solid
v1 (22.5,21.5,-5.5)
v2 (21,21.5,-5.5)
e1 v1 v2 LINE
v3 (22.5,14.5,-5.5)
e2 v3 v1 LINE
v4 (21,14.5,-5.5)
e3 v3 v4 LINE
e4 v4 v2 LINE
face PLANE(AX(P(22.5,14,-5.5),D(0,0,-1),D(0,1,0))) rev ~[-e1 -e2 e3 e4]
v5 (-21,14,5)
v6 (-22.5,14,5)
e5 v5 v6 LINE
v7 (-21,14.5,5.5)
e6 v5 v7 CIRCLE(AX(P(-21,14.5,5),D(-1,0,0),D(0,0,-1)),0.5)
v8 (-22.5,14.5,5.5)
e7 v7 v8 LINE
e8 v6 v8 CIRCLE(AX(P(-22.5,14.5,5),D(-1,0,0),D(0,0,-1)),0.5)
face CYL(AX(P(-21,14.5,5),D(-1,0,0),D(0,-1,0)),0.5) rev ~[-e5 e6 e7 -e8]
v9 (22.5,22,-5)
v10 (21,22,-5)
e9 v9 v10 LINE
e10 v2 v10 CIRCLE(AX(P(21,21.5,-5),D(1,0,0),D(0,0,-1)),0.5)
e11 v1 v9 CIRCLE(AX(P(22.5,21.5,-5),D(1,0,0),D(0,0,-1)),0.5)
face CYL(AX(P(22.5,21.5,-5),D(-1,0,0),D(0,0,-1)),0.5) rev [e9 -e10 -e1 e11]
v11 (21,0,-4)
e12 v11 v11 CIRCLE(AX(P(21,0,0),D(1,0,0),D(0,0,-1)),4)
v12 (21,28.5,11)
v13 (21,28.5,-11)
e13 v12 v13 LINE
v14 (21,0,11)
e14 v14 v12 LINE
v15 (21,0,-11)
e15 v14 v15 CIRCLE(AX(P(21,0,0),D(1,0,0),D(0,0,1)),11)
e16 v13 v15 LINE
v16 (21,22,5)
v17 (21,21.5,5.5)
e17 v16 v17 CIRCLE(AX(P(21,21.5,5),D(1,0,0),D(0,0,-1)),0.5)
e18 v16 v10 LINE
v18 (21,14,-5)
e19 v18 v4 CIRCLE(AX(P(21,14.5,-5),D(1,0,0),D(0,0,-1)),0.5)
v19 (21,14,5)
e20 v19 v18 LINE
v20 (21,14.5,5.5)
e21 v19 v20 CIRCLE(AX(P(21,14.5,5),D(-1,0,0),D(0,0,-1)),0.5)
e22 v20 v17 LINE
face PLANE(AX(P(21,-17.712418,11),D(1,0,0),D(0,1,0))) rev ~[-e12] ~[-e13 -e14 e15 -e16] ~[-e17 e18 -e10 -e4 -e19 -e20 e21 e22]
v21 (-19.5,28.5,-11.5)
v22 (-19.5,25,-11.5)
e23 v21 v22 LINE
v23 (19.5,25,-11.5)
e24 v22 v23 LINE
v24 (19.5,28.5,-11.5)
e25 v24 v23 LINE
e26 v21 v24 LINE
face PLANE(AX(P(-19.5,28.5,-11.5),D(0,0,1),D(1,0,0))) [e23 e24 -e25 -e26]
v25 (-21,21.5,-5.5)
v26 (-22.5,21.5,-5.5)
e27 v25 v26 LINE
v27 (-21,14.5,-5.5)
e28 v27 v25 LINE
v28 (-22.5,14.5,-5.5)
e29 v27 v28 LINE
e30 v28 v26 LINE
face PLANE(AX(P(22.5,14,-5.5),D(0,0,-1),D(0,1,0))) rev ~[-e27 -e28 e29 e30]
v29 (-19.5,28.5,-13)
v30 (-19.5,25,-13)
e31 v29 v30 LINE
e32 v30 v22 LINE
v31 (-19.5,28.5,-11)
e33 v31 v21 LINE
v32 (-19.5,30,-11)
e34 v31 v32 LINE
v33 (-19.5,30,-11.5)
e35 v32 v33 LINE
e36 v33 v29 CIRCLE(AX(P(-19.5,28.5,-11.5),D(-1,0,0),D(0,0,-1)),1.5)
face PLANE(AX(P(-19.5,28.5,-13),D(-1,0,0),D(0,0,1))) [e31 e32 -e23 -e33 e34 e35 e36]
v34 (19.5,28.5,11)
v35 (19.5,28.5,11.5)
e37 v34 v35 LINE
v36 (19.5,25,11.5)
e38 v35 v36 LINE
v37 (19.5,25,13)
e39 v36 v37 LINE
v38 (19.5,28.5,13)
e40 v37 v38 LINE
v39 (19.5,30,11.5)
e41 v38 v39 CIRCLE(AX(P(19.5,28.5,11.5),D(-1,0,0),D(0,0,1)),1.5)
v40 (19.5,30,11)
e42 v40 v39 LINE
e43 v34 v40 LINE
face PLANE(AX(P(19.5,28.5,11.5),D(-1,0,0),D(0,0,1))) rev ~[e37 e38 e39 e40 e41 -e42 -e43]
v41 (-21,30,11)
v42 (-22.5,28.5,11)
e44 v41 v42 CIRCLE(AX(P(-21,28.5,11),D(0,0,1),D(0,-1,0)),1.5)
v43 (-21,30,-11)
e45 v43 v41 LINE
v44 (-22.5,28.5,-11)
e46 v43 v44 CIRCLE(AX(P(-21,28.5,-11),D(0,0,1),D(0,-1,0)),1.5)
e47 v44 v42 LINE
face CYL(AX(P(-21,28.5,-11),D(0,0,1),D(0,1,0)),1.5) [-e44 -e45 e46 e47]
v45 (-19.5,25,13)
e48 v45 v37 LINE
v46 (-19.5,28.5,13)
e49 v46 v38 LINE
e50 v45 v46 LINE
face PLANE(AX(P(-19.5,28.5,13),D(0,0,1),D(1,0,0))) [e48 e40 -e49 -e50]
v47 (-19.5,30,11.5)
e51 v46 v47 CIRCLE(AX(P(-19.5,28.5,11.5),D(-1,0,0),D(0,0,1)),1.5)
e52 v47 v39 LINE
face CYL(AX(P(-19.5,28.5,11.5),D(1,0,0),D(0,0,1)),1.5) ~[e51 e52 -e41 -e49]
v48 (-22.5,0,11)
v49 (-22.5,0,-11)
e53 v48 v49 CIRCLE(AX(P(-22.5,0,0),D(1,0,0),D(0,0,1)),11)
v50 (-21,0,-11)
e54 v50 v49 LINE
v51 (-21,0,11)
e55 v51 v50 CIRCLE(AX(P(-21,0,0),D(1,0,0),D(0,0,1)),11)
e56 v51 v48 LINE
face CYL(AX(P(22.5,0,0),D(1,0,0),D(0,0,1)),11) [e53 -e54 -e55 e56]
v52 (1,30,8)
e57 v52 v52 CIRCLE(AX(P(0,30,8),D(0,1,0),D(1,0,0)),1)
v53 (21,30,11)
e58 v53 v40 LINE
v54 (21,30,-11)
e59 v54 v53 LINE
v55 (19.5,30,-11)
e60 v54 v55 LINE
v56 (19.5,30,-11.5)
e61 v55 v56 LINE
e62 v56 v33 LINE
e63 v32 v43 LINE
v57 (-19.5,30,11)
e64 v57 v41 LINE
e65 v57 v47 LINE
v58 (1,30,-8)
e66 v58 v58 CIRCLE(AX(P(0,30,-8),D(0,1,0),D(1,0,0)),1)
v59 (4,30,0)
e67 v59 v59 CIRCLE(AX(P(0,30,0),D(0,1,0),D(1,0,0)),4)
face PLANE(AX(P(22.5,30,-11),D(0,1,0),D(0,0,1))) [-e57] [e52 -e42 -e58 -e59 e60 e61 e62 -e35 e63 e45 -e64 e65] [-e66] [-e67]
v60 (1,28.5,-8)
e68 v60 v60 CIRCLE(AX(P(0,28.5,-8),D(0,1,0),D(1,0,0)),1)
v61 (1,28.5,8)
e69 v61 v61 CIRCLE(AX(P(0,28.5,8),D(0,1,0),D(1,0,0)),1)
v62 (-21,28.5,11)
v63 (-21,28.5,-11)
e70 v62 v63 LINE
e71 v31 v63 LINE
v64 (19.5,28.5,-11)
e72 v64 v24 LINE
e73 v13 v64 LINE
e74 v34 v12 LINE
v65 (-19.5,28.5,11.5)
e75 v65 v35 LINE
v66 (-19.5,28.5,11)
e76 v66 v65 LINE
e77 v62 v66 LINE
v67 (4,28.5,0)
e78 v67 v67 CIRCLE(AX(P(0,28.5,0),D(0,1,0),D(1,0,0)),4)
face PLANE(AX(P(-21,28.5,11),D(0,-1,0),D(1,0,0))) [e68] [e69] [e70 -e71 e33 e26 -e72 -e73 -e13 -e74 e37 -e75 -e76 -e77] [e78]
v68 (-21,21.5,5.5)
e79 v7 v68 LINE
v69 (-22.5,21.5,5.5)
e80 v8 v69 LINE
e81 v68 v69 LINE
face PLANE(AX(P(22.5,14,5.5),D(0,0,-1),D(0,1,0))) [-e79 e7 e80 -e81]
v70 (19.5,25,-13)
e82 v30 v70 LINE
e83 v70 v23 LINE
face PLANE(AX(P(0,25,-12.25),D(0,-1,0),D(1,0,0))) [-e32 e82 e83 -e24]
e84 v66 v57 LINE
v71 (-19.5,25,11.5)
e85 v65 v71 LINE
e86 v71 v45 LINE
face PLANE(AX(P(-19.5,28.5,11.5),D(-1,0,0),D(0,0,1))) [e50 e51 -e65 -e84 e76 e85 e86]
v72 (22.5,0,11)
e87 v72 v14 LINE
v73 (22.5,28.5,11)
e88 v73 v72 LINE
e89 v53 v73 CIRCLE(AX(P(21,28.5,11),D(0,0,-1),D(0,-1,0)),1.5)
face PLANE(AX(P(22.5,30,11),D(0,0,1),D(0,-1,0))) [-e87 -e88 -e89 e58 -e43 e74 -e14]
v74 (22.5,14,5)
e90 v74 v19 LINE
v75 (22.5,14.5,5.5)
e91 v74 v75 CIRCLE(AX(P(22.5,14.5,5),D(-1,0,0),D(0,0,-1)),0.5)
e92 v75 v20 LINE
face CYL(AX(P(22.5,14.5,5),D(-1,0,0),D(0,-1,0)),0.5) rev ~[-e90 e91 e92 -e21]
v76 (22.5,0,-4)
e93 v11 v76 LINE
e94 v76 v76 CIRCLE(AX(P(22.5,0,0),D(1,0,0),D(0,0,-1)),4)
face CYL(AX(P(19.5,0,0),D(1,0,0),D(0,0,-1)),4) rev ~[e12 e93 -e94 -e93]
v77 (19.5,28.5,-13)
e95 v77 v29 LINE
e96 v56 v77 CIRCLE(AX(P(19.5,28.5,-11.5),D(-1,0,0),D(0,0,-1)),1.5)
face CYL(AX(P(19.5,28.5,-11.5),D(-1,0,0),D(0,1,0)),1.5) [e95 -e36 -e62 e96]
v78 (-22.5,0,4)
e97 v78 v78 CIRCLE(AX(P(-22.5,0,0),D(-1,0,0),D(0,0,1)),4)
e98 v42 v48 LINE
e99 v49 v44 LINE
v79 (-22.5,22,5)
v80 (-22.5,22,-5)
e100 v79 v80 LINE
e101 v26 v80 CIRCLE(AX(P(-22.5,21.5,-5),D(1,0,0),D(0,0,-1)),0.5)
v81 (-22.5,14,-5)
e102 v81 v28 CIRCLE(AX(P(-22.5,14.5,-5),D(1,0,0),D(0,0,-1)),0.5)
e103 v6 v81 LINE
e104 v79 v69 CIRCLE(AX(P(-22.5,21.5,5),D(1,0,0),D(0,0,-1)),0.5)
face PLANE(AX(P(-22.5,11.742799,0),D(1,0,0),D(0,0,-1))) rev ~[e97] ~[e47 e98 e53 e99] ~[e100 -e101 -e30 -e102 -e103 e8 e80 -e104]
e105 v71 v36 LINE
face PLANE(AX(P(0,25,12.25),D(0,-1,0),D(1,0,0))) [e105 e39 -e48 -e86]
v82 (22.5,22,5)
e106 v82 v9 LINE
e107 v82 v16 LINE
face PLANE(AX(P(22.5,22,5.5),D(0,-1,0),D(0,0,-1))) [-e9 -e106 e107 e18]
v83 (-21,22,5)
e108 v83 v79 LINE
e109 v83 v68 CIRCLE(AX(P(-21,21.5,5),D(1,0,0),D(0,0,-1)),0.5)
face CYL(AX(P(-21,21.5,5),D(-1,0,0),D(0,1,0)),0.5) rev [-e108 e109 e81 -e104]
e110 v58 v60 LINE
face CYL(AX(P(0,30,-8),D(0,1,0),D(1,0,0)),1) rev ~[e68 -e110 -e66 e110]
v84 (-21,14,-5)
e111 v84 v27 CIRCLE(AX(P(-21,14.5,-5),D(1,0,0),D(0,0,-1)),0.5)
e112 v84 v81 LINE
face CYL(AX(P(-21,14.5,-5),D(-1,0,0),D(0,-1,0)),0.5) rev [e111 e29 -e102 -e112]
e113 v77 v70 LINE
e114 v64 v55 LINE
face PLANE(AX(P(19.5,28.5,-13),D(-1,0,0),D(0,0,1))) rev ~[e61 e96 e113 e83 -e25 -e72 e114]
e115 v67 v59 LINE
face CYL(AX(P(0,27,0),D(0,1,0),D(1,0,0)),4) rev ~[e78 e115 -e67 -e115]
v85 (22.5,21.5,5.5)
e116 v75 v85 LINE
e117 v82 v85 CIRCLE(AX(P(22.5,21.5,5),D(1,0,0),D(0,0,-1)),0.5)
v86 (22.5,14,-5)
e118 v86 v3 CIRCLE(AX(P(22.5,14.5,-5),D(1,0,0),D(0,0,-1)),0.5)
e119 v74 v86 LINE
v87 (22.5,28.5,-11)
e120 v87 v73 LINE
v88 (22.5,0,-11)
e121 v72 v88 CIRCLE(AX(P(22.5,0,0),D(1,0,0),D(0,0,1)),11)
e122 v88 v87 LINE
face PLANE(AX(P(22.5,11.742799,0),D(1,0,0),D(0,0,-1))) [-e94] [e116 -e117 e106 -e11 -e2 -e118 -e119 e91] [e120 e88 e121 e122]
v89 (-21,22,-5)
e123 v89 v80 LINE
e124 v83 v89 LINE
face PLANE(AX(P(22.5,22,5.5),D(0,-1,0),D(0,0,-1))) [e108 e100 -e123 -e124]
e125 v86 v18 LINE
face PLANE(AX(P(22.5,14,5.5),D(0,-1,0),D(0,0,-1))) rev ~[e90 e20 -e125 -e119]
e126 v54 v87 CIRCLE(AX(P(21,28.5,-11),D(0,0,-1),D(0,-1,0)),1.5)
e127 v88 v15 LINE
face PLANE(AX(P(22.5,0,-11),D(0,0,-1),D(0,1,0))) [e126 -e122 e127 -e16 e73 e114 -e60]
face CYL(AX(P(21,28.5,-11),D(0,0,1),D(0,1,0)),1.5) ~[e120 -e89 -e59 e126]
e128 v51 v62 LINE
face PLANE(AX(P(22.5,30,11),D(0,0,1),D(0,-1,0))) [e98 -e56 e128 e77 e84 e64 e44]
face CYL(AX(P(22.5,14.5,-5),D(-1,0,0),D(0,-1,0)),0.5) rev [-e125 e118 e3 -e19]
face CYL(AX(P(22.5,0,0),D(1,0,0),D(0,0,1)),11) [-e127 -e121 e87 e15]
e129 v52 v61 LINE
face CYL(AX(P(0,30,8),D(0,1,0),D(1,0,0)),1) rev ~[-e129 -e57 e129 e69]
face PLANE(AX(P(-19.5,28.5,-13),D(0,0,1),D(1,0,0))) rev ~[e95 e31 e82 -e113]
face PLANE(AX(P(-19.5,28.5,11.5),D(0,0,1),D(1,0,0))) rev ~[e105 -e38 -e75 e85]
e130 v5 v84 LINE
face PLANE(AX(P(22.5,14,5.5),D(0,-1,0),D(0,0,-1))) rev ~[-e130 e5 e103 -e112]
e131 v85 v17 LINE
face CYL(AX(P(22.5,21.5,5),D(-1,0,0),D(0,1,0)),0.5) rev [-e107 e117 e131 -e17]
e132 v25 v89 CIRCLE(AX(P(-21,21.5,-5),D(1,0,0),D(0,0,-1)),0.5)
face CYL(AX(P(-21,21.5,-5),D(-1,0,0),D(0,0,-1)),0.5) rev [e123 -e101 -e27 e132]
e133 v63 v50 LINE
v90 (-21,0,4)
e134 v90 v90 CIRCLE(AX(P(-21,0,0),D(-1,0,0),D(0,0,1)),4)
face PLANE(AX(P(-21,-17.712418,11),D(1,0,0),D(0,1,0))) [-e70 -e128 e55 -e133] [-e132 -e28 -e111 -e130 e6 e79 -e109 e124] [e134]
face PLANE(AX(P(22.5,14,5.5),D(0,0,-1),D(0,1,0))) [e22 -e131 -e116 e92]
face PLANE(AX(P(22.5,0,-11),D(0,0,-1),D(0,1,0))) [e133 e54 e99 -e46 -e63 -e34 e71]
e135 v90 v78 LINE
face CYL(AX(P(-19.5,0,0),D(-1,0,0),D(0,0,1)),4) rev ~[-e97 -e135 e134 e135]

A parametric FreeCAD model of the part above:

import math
import FreeCAD as App
import Part
import Sketcher

V = App.Vector
Q = App.Units.Quantity


def edges_at(feature, points):
    """Names of the edges that pass closest to the given points."""
    edges = feature.Shape.Edges
    near = lambda p: min(range(len(edges)), key=lambda i: edges[i].distToShape(Part.Vertex(*p))[0])
    return sorted({f"Edge{near(p) + 1}" for p in points})

doc = App.newDocument("Part")
body = doc.addObject("PartDesign::Body", "Body")

# Sketch on YZ plane
sketch1 = doc.addObject("Sketcher::SketchObject", "Sketch")
body.addObject(sketch1)
sketch1.AttachmentSupport = (doc.YZ_Plane, [""])
sketch1.MapMode = "FlatFace"
sketch1.AttachmentOffset = App.Placement(V(0, 0, 22.5), App.Rotation())
sketch1.addGeometry([
    Part.LineSegment(V(30, 11, 0), V(0, 11, 0)),
    Part.ArcOfCircle(Part.Circle(V(0, 0, 0), V(0, 0, 1), 11), math.radians(90), math.radians(270)),
    Part.LineSegment(V(0, -11, 0), V(30, -11, 0)),
    Part.LineSegment(V(30, -11, 0), V(30, 11, 0)),
], False)
sketch1.addConstraint([
    Sketcher.Constraint("Tangent", 0, 2, 1, 1),
    Sketcher.Constraint("Tangent", 1, 2, 2, 1),
    Sketcher.Constraint("Coincident", 2, 2, 3, 1),
    Sketcher.Constraint("Coincident", 3, 2, 0, 1),
    Sketcher.Constraint("Horizontal", 0),
    Sketcher.Constraint("Horizontal", 2),
    Sketcher.Constraint("Vertical", 3),
    Sketcher.Constraint("Coincident", 1, 3, -1, 1),
    Sketcher.Constraint("Radius", 1, Q("11 mm")),
    Sketcher.Constraint("DistanceX", 0, 2, 0, 1, Q("30 mm")),
])
pad1 = doc.addObject("PartDesign::Pad", "Pad")
body.addObject(pad1)
pad1.Profile = sketch1
pad1.Length = 45
pad1.Reversed = True

# Sketch on XY plane
sketch2 = doc.addObject("Sketcher::SketchObject", "Sketch001")
body.addObject(sketch2)
sketch2.AttachmentSupport = (doc.XY_Plane, [""])
sketch2.MapMode = "FlatFace"
sketch2.AttachmentOffset = App.Placement(V(0, 0, 11), App.Rotation())
sketch2.addGeometry([
    Part.LineSegment(V(-21, 28, 0), V(-21, -18, 0)),
    Part.LineSegment(V(-21, -18, 0), V(21, -18, 0)),
    Part.LineSegment(V(21, -18, 0), V(21, 28, 0)),
    Part.LineSegment(V(21, 28, 0), V(-21, 28, 0)),
], False)
sketch2.addConstraint([
    Sketcher.Constraint("Coincident", 0, 2, 1, 1),
    Sketcher.Constraint("Coincident", 1, 2, 2, 1),
    Sketcher.Constraint("Coincident", 2, 2, 3, 1),
    Sketcher.Constraint("Coincident", 3, 2, 0, 1),
    Sketcher.Constraint("Vertical", 0),
    Sketcher.Constraint("Horizontal", 1),
    Sketcher.Constraint("Vertical", 2),
    Sketcher.Constraint("Horizontal", 3),
    Sketcher.Constraint("DistanceX", 1, 1, 1, 2, Q("42 mm")),
    Sketcher.Constraint("DistanceX", 0, 2, -1, 1, Q("21 mm")),
    Sketcher.Constraint("DistanceY", -1, 1, 2, 2, Q("28.5 mm")),
    Sketcher.Constraint("DistanceY", 0, 2, 0, 1, Q("46.212418 mm")),
])
pocket1 = doc.addObject("PartDesign::Pocket", "Pocket")
body.addObject(pocket1)
pocket1.Profile = sketch2
pocket1.Type = "ThroughAll"

# Sketch on XY plane
sketch3 = doc.addObject("Sketcher::SketchObject", "Sketch002")
body.addObject(sketch3)
sketch3.AttachmentSupport = (doc.XY_Plane, [""])
sketch3.MapMode = "FlatFace"
sketch3.AttachmentOffset = App.Placement(V(0, 0, -11), App.Rotation())
sketch3.addGeometry([
    Part.LineSegment(V(19.5, 30, 0), V(19.5, 28.5, 0)),
    Part.LineSegment(V(19.5, 28.5, 0), V(-19.5, 28.5, 0)),
    Part.LineSegment(V(-19.5, 28.5, 0), V(-19.5, 30, 0)),
    Part.LineSegment(V(-19.5, 30, 0), V(19.5, 30, 0)),
], False)
sketch3.addConstraint([
    Sketcher.Constraint("Coincident", 0, 2, 1, 1),
    Sketcher.Constraint("Coincident", 1, 2, 2, 1),
    Sketcher.Constraint("Coincident", 2, 2, 3, 1),
    Sketcher.Constraint("Coincident", 3, 2, 0, 1),
    Sketcher.Constraint("Vertical", 0),
    Sketcher.Constraint("Horizontal", 1),
    Sketcher.Constraint("Vertical", 2),
    Sketcher.Constraint("Horizontal", 3),
    Sketcher.Constraint("DistanceX", 1, 2, 1, 1, Q("39 mm")),
    Sketcher.Constraint("DistanceY", 0, 2, 0, 1, Q("1.5 mm")),
    Sketcher.Constraint("DistanceY", -1, 1, 2, 2, Q("30 mm")),
    Sketcher.Constraint("DistanceX", -1, 1, 0, 2, Q("19.5 mm")),
])
pad2 = doc.addObject("PartDesign::Pad", "Pad001")
body.addObject(pad2)
pad2.Profile = sketch3
pad2.Length = 2
pad2.Reversed = True

# Sketch on XZ plane
sketch4 = doc.addObject("Sketcher::SketchObject", "Sketch003")
body.addObject(sketch4)
sketch4.AttachmentSupport = (doc.XZ_Plane, [""])
sketch4.MapMode = "FlatFace"
sketch4.AttachmentOffset = App.Placement(V(0, 0, -28.5), App.Rotation())
sketch4.addGeometry([
    Part.LineSegment(V(-19.5, -11.5, 0), V(-19.5, -13, 0)),
    Part.LineSegment(V(-19.5, -13, 0), V(19.5, -13, 0)),
    Part.LineSegment(V(19.5, -13, 0), V(19.5, -11.5, 0)),
    Part.LineSegment(V(19.5, -11.5, 0), V(-19.5, -11.5, 0)),
], False)
sketch4.addConstraint([
    Sketcher.Constraint("Coincident", 0, 2, 1, 1),
    Sketcher.Constraint("Coincident", 1, 2, 2, 1),
    Sketcher.Constraint("Coincident", 2, 2, 3, 1),
    Sketcher.Constraint("Coincident", 3, 2, 0, 1),
    Sketcher.Constraint("Vertical", 0),
    Sketcher.Constraint("Horizontal", 1),
    Sketcher.Constraint("Vertical", 2),
    Sketcher.Constraint("Horizontal", 3),
    Sketcher.Constraint("DistanceX", 1, 1, 1, 2, Q("39 mm")),
    Sketcher.Constraint("DistanceY", 0, 2, 0, 1, Q("1.5 mm")),
    Sketcher.Constraint("DistanceY", 0, 2, -1, 1, Q("13 mm")),
    Sketcher.Constraint("DistanceX", 0, 2, -1, 1, Q("19.5 mm")),
])
pad3 = doc.addObject("PartDesign::Pad", "Pad002")
body.addObject(pad3)
pad3.Profile = sketch4
pad3.Length = 3.5

# Sketch on XY plane
sketch5 = doc.addObject("Sketcher::SketchObject", "Sketch004")
body.addObject(sketch5)
sketch5.AttachmentSupport = (doc.XY_Plane, [""])
sketch5.MapMode = "FlatFace"
sketch5.AttachmentOffset = App.Placement(V(0, 0, 11), App.Rotation())
sketch5.addGeometry([
    Part.LineSegment(V(-19.5, 30, 0), V(-19.5, 28.5, 0)),
    Part.LineSegment(V(-19.5, 28.5, 0), V(19.5, 28.5, 0)),
    Part.LineSegment(V(19.5, 28.5, 0), V(19.5, 30, 0)),
    Part.LineSegment(V(19.5, 30, 0), V(-19.5, 30, 0)),
], False)
sketch5.addConstraint([
    Sketcher.Constraint("Coincident", 0, 2, 1, 1),
    Sketcher.Constraint("Coincident", 1, 2, 2, 1),
    Sketcher.Constraint("Coincident", 2, 2, 3, 1),
    Sketcher.Constraint("Coincident", 3, 2, 0, 1),
    Sketcher.Constraint("Vertical", 0),
    Sketcher.Constraint("Horizontal", 1),
    Sketcher.Constraint("Vertical", 2),
    Sketcher.Constraint("Horizontal", 3),
    Sketcher.Constraint("DistanceX", 1, 1, 1, 2, Q("39 mm")),
    Sketcher.Constraint("DistanceY", 0, 2, 0, 1, Q("1.5 mm")),
    Sketcher.Constraint("DistanceY", -1, 1, 2, 2, Q("30 mm")),
    Sketcher.Constraint("DistanceX", 0, 2, -1, 1, Q("19.5 mm")),
])
pad4 = doc.addObject("PartDesign::Pad", "Pad003")
body.addObject(pad4)
pad4.Profile = sketch5
pad4.Length = 2

# Sketch on XZ plane
sketch6 = doc.addObject("Sketcher::SketchObject", "Sketch005")
body.addObject(sketch6)
sketch6.AttachmentSupport = (doc.XZ_Plane, [""])
sketch6.MapMode = "FlatFace"
sketch6.AttachmentOffset = App.Placement(V(0, 0, -28.5), App.Rotation())
sketch6.addGeometry([
    Part.LineSegment(V(-19.5, 13, 0), V(-19.5, 11.5, 0)),
    Part.LineSegment(V(-19.5, 11.5, 0), V(19.5, 11.5, 0)),
    Part.LineSegment(V(19.5, 11.5, 0), V(19.5, 13, 0)),
    Part.LineSegment(V(19.5, 13, 0), V(-19.5, 13, 0)),
], False)
sketch6.addConstraint([
    Sketcher.Constraint("Coincident", 0, 2, 1, 1),
    Sketcher.Constraint("Coincident", 1, 2, 2, 1),
    Sketcher.Constraint("Coincident", 2, 2, 3, 1),
    Sketcher.Constraint("Coincident", 3, 2, 0, 1),
    Sketcher.Constraint("Vertical", 0),
    Sketcher.Constraint("Horizontal", 1),
    Sketcher.Constraint("Vertical", 2),
    Sketcher.Constraint("Horizontal", 3),
    Sketcher.Constraint("DistanceX", 1, 1, 1, 2, Q("39 mm")),
    Sketcher.Constraint("DistanceY", 0, 2, 0, 1, Q("1.5 mm")),
    Sketcher.Constraint("DistanceY", -1, 1, 2, 2, Q("13 mm")),
    Sketcher.Constraint("DistanceX", 0, 2, -1, 1, Q("19.5 mm")),
])
pad5 = doc.addObject("PartDesign::Pad", "Pad004")
body.addObject(pad5)
pad5.Profile = sketch6
pad5.Length = 3.5

# Sketch on XZ plane
sketch7 = doc.addObject("Sketcher::SketchObject", "Sketch006")
body.addObject(sketch7)
sketch7.AttachmentSupport = (doc.XZ_Plane, [""])
sketch7.MapMode = "FlatFace"
sketch7.AttachmentOffset = App.Placement(V(0, 0, -28.5), App.Rotation())
sketch7.addGeometry(Part.Circle(V(0, 0, 0), V(0, 0, 1), 4), False)
sketch7.addConstraint([
    Sketcher.Constraint("Coincident", 0, 3, -1, 1),
    Sketcher.Constraint("Diameter", 0, Q("8 mm")),
])
doc.recompute()
hole = doc.addObject("PartDesign::Hole", "Hole")
body.addObject(hole)
hole.Profile = sketch7
hole.ThreadType = "None"
hole.Diameter = 8
hole.DepthType = "Dimension"
hole.Depth = 1.5
hole.DrillPoint = "Flat"

# Sketch on YZ plane
sketch8 = doc.addObject("Sketcher::SketchObject", "Sketch007")
body.addObject(sketch8)
sketch8.AttachmentSupport = (doc.YZ_Plane, [""])
sketch8.MapMode = "FlatFace"
sketch8.AttachmentOffset = App.Placement(V(0, 0, -21), App.Rotation())
sketch8.addGeometry(Part.Circle(V(0, 0, 0), V(0, 0, 1), 4), False)
sketch8.addConstraint([
    Sketcher.Constraint("Coincident", 0, 3, -1, 1),
    Sketcher.Constraint("Diameter", 0, Q("8 mm")),
])
doc.recompute()
hole2 = doc.addObject("PartDesign::Hole", "Hole001")
body.addObject(hole2)
hole2.Profile = sketch8
hole2.ThreadType = "None"
hole2.Diameter = 8
hole2.DepthType = "Dimension"
hole2.Depth = 1.5
hole2.DrillPoint = "Flat"

# Sketch on YZ plane
sketch9 = doc.addObject("Sketcher::SketchObject", "Sketch008")
body.addObject(sketch9)
sketch9.AttachmentSupport = (doc.YZ_Plane, [""])
sketch9.MapMode = "FlatFace"
sketch9.AttachmentOffset = App.Placement(V(0, 0, 21), App.Rotation())
sketch9.addGeometry(Part.Circle(V(0, 0, 0), V(0, 0, 1), 4), False)
sketch9.addConstraint([
    Sketcher.Constraint("Coincident", 0, 3, -1, 1),
    Sketcher.Constraint("Diameter", 0, Q("8 mm")),
])
doc.recompute()
hole3 = doc.addObject("PartDesign::Hole", "Hole002")
body.addObject(hole3)
hole3.Profile = sketch9
hole3.ThreadType = "None"
hole3.Diameter = 8
hole3.DepthType = "Dimension"
hole3.Depth = 1.5
hole3.DrillPoint = "Flat"
hole3.Reversed = True
doc.recompute()

fillet = doc.addObject("PartDesign::Fillet", "Fillet")
body.addObject(fillet)
fillet.Base = (hole3, edges_at(hole3, [
    (0, 30, -13),
    (-22.5, 30, 0),
    (22.5, 30, 0),
    (0, 30, 13),
]))
fillet.Radius = 1.5

# Sketch on XZ plane
sketch10 = doc.addObject("Sketcher::SketchObject", "Sketch009")
body.addObject(sketch10)
sketch10.AttachmentSupport = (doc.XZ_Plane, [""])
sketch10.MapMode = "FlatFace"
sketch10.AttachmentOffset = App.Placement(V(0, 0, -30), App.Rotation())
sketch10.addGeometry([
    Part.Circle(V(0, -8, 0), V(0, 0, 1), 1),
    Part.Circle(V(0, 8, 0), V(0, 0, 1), 1),
], False)
sketch10.addConstraint([
    Sketcher.Constraint("Equal", 0, 1),
    Sketcher.Constraint("Symmetric", 0, 3, 1, 3, -1, 1),
    Sketcher.Constraint("PointOnObject", 0, 3, -2),
    Sketcher.Constraint("Diameter", 0, Q("2 mm")),
    Sketcher.Constraint("DistanceY", 0, 3, -1, 1, Q("8 mm")),
])
pocket2 = doc.addObject("PartDesign::Pocket", "Pocket001")
body.addObject(pocket2)
pocket2.Profile = sketch10
pocket2.Length = 2
pocket2.Reversed = True

# Sketch on YZ plane
sketch11 = doc.addObject("Sketcher::SketchObject", "Sketch010")
body.addObject(sketch11)
sketch11.AttachmentSupport = (doc.YZ_Plane, [""])
sketch11.MapMode = "FlatFace"
sketch11.AttachmentOffset = App.Placement(V(0, 0, 22.5), App.Rotation())
sketch11.addGeometry([
    Part.LineSegment(V(22, 6, 0), V(14, 6, 0)),
    Part.LineSegment(V(14, 6, 0), V(14, -6, 0)),
    Part.LineSegment(V(14, -6, 0), V(22, -6, 0)),
    Part.LineSegment(V(22, -6, 0), V(22, 6, 0)),
], False)
sketch11.addConstraint([
    Sketcher.Constraint("Coincident", 0, 2, 1, 1),
    Sketcher.Constraint("Coincident", 1, 2, 2, 1),
    Sketcher.Constraint("Coincident", 2, 2, 3, 1),
    Sketcher.Constraint("Coincident", 3, 2, 0, 1),
    Sketcher.Constraint("Horizontal", 0),
    Sketcher.Constraint("Vertical", 1),
    Sketcher.Constraint("Horizontal", 2),
    Sketcher.Constraint("Vertical", 3),
    Sketcher.Constraint("DistanceX", 0, 2, 0, 1, Q("8 mm")),
    Sketcher.Constraint("DistanceY", 1, 2, 1, 1, Q("11 mm")),
    Sketcher.Constraint("DistanceX", -1, 1, 0, 2, Q("14 mm")),
    Sketcher.Constraint("DistanceY", -1, 1, 0, 2, Q("5.5 mm")),
])
pocket3 = doc.addObject("PartDesign::Pocket", "Pocket002")
body.addObject(pocket3)
pocket3.Profile = sketch11
pocket3.Length = 45
doc.recompute()

fillet2 = doc.addObject("PartDesign::Fillet", "Fillet001")
body.addObject(fillet2)
fillet2.Base = (pocket3, edges_at(pocket3, [
    (-21.75, 14, 5.5),
    (21.75, 14, 5.5),
    (-21.75, 22, 5.5),
    (21.75, 22, 5.5),
    (-21.75, 22, -5.5),
    (21.75, 22, -5.5),
    (-21.75, 14, -5.5),
    (21.75, 14, -5.5),
]))
fillet2.Radius = 0.5

doc.recompute()
